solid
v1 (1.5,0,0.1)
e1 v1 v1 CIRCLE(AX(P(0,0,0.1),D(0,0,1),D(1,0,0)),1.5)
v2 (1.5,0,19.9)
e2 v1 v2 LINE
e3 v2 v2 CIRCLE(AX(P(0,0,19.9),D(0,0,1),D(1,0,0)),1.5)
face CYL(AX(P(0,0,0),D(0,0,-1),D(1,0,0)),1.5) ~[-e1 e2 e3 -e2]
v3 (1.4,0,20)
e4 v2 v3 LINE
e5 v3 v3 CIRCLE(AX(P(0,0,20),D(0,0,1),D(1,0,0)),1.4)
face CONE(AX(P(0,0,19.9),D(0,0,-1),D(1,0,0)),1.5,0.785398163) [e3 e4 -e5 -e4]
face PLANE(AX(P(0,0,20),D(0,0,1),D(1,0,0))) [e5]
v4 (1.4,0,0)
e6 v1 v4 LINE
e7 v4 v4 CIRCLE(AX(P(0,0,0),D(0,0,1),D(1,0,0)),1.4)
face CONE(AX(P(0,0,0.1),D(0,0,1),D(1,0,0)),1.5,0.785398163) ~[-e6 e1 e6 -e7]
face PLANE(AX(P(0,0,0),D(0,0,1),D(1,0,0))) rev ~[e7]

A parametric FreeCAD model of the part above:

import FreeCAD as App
import Part
import Sketcher

V = App.Vector
Q = App.Units.Quantity


def edges_at(feature, points):
    """Names of the edges that pass closest to the given points."""
    edges = feature.Shape.Edges
    near = lambda p: min(range(len(edges)), key=lambda i: edges[i].distToShape(Part.Vertex(*p))[0])
    return sorted({f"Edge{near(p) + 1}" for p in points})

doc = App.newDocument("Part")
params = doc.addObject("Spreadsheet::Sheet", "Params")
for row, (alias, value) in enumerate([
    ("sketch1_diameter", "3 mm"),
    ("pad1_length", "20 mm"),
    ("chamfer_size", "0.1 mm"),
], start=1):
    params.set(f"A{row}", alias)
    params.set(f"B{row}", "=" + value)
    params.setAlias(f"B{row}", alias)

body = doc.addObject("PartDesign::Body", "Body")

# Sketch on XY plane
sketch1 = doc.addObject("Sketcher::SketchObject", "Sketch")
body.addObject(sketch1)
sketch1.AttachmentSupport = (doc.XY_Plane, [""])
sketch1.MapMode = "FlatFace"
sketch1.addGeometry(Part.Circle(V(0, 0, 0), V(0, 0, 1), 1.5), False)
sketch1.addConstraint(Sketcher.Constraint("Coincident", 0, 3, -1, 1))
sketch1.addConstraint(Sketcher.Constraint("Diameter", 0, Q("3 mm")))
sketch1.setExpression("Constraints[1]", "Params.sketch1_diameter")
pad1 = doc.addObject("PartDesign::Pad", "Pad")
body.addObject(pad1)
pad1.Profile = sketch1
pad1.setExpression("Length", "Params.pad1_length")
doc.recompute()

chamfer = doc.addObject("PartDesign::Chamfer", "Chamfer")
body.addObject(chamfer)
chamfer.Base = (pad1, edges_at(pad1, [(-1.5, 0, 20), (-1.5, 0, 0)]))
chamfer.setExpression("Size", "Params.chamfer_size")

doc.recompute()
